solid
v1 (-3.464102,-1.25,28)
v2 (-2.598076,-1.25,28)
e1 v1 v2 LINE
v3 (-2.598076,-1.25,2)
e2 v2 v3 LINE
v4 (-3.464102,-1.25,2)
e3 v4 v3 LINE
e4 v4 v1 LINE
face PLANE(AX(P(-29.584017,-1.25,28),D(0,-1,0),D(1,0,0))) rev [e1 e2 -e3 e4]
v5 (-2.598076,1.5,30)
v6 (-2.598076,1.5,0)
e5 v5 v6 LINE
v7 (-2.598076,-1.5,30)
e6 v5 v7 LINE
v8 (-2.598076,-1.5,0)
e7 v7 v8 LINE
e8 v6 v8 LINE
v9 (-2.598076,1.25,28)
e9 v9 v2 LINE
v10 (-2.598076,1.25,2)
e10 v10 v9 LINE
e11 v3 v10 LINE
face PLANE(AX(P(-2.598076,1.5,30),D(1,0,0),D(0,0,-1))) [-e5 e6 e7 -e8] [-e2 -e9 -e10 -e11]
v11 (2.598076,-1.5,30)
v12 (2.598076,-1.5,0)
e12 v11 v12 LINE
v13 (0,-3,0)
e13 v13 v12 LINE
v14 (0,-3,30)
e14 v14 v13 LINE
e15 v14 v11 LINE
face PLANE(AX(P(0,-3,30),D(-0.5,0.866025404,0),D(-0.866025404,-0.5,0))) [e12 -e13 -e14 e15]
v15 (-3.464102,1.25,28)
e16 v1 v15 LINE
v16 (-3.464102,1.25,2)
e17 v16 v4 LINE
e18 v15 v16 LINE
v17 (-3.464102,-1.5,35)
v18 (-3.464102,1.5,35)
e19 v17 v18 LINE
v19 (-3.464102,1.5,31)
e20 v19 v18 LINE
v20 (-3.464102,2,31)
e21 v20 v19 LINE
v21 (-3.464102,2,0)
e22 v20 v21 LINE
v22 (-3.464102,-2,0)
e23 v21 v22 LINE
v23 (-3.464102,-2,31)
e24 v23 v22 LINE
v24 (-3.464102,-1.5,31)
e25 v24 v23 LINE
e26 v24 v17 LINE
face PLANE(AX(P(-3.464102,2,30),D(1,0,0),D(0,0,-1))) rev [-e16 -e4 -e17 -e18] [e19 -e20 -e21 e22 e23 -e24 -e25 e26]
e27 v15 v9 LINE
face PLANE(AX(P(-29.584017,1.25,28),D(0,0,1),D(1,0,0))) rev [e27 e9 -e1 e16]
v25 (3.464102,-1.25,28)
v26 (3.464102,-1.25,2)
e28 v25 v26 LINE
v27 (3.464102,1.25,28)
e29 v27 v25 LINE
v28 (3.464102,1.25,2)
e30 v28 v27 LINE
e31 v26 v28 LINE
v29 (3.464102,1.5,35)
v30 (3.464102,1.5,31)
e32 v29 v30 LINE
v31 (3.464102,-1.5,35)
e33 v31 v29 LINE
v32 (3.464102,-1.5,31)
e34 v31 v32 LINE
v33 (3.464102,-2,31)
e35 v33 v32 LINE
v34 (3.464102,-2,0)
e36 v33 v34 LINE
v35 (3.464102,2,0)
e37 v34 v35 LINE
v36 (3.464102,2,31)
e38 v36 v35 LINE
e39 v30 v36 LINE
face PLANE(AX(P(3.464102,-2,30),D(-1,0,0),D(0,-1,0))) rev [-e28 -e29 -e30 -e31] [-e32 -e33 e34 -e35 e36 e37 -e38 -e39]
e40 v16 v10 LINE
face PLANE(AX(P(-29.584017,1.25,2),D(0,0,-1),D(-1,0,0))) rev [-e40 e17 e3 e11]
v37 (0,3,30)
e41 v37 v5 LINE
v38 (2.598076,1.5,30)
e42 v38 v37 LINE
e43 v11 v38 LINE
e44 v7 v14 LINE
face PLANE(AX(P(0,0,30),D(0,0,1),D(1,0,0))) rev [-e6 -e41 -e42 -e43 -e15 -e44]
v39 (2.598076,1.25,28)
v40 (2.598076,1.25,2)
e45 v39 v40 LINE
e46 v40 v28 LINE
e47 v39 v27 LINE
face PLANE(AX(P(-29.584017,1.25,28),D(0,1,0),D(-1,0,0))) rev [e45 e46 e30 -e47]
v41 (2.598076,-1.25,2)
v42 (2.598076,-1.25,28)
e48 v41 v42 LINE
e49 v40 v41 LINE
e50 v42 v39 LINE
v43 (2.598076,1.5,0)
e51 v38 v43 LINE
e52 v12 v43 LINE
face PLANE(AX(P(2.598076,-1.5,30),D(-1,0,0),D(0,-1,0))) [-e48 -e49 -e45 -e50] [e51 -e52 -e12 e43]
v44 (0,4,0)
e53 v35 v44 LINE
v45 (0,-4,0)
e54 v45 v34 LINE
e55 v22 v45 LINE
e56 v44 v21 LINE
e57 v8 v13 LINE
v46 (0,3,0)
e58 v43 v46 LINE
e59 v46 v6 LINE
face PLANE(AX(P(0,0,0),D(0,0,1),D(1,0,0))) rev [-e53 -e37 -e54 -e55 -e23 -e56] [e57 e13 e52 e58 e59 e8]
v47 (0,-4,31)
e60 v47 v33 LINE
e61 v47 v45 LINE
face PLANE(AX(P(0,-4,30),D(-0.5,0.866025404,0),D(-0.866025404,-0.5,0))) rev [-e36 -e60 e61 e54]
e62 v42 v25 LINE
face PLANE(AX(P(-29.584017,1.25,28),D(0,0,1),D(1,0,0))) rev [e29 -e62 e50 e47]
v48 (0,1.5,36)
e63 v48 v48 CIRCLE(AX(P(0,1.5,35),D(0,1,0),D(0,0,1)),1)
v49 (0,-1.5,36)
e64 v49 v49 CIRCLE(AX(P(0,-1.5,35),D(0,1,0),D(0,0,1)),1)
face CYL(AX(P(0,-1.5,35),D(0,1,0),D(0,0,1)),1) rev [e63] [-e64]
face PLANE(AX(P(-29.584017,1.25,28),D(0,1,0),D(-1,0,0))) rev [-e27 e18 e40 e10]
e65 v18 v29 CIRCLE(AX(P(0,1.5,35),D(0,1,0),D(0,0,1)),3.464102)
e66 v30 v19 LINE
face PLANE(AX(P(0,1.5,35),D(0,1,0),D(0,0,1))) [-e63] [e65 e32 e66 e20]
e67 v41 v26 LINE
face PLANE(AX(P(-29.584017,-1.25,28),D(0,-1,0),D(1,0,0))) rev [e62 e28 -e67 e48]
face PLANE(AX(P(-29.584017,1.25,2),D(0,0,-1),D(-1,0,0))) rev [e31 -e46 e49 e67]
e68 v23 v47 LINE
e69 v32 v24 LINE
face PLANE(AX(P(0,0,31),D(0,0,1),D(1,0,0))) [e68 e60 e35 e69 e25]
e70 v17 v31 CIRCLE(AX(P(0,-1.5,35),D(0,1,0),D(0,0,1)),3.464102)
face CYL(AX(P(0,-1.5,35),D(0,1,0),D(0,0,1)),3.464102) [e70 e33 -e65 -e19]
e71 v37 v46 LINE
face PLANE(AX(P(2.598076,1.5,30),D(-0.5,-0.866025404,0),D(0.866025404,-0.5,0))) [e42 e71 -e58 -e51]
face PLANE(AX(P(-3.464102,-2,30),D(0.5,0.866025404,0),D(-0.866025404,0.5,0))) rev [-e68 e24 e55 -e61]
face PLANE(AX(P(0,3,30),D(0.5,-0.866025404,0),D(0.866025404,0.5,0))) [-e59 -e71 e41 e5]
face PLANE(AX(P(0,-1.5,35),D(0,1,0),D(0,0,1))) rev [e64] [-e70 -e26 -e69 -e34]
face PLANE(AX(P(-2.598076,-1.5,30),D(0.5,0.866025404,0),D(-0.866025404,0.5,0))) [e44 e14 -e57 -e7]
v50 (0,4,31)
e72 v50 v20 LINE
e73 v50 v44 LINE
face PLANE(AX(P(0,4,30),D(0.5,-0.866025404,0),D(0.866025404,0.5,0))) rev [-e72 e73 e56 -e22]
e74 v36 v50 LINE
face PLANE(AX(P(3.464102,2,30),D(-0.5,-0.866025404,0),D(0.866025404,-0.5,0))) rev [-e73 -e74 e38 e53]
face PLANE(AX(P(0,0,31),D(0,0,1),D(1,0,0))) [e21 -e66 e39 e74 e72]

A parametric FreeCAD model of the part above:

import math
import FreeCAD as App
import Part
import Sketcher
Q = App.Units.Quantity

doc = App.newDocument("Part")
params = doc.addObject("Spreadsheet::Sheet", "Params")
for row, (alias, value) in enumerate([
    ("sketch1_height", "4 mm"),
    ("sketch1_height2", "3 mm"),
    ("sketch1_length", "4 mm"),
    ("sketch1_length2", "3 mm"),
    ("pad1_length", "30 mm"),
    ("sketch2_height", "4 mm"),
    ("sketch2_length", "4 mm"),
    ("pad2_length", "1 mm"),
    ("sketch3_height", "26 mm"),
    ("sketch3_width", "2.5 mm"),
    ("pocket1_length", "6.928203 mm"),
    ("sketch4_diameter", "2 mm"),
    ("sketch4_height", "4 mm"),
    ("pad3_length", "1.5 mm"),
    ("pad3_length2", "1.5 mm"),
], start=1):
    params.set(f"A{row}", alias)
    params.set(f"B{row}", "=" + value)
    params.setAlias(f"B{row}", alias)

body = doc.addObject("PartDesign::Body", "Body")

# Sketch on XY plane
sketch1 = body.newObject("Sketcher::SketchObject", "Sketch")
sketch1.AttachmentSupport = (doc.getObject("XY_Plane"), [""])
sketch1.MapMode = "FlatFace"
sketch1.addGeometry(Part.LineSegment(App.Vector(0, 4, 0), App.Vector(-3.5, 2, 0)), False)
sketch1.addGeometry(Part.LineSegment(App.Vector(-3.5, 2, 0), App.Vector(-3.5, -2, 0)), False)
sketch1.addGeometry(Part.LineSegment(App.Vector(-3.5, -2, 0), App.Vector(0, -4, 0)), False)
sketch1.addGeometry(Part.LineSegment(App.Vector(0, -4, 0), App.Vector(3.5, -2, 0)), False)
sketch1.addGeometry(Part.LineSegment(App.Vector(3.5, -2, 0), App.Vector(3.5, 2, 0)), False)
sketch1.addGeometry(Part.LineSegment(App.Vector(3.5, 2, 0), App.Vector(0, 4, 0)), False)
sketch1.addGeometry(Part.LineSegment(App.Vector(-2.6, 1.5, 0), App.Vector(0, 3, 0)), False)
sketch1.addGeometry(Part.LineSegment(App.Vector(0, 3, 0), App.Vector(2.6, 1.5, 0)), False)
sketch1.addGeometry(Part.LineSegment(App.Vector(2.6, 1.5, 0), App.Vector(2.6, -1.5, 0)), False)
sketch1.addGeometry(Part.LineSegment(App.Vector(2.6, -1.5, 0), App.Vector(0, -3, 0)), False)
sketch1.addGeometry(Part.LineSegment(App.Vector(0, -3, 0), App.Vector(-2.6, -1.5, 0)), False)
sketch1.addGeometry(Part.LineSegment(App.Vector(-2.6, -1.5, 0), App.Vector(-2.6, 1.5, 0)), False)
sketch1.addConstraint(Sketcher.Constraint("Coincident", 0, 2, 1, 1))
sketch1.addConstraint(Sketcher.Constraint("Coincident", 1, 2, 2, 1))
sketch1.addConstraint(Sketcher.Constraint("Coincident", 2, 2, 3, 1))
sketch1.addConstraint(Sketcher.Constraint("Coincident", 3, 2, 4, 1))
sketch1.addConstraint(Sketcher.Constraint("Coincident", 4, 2, 5, 1))
sketch1.addConstraint(Sketcher.Constraint("Coincident", 5, 2, 0, 1))
sketch1.addConstraint(Sketcher.Constraint("Coincident", 6, 2, 7, 1))
sketch1.addConstraint(Sketcher.Constraint("Coincident", 7, 2, 8, 1))
sketch1.addConstraint(Sketcher.Constraint("Coincident", 8, 2, 9, 1))
sketch1.addConstraint(Sketcher.Constraint("Coincident", 9, 2, 10, 1))
sketch1.addConstraint(Sketcher.Constraint("Coincident", 10, 2, 11, 1))
sketch1.addConstraint(Sketcher.Constraint("Coincident", 11, 2, 6, 1))
sketch1.addConstraint(Sketcher.Constraint("Vertical", 1))
sketch1.addConstraint(Sketcher.Constraint("Vertical", 4))
sketch1.addConstraint(Sketcher.Constraint("Vertical", 8))
sketch1.addConstraint(Sketcher.Constraint("Vertical", 11))
sketch1.addConstraint(Sketcher.Constraint("Symmetric", 0, 2, 3, 2, -1, 1))
sketch1.addConstraint(Sketcher.Constraint("Symmetric", 2, 2, 5, 2, -1, 1))
sketch1.addConstraint(Sketcher.Constraint("Symmetric", 6, 2, 9, 2, -1, 1))
sketch1.addConstraint(Sketcher.Constraint("Symmetric", 7, 2, 10, 2, -1, 1))
sketch1.addConstraint(Sketcher.Constraint("PointOnObject", 2, 2, -2))
sketch1.addConstraint(Sketcher.Constraint("PointOnObject", 6, 2, -2))
sketch1.addConstraint(Sketcher.Constraint("Parallel", 2, 5))
sketch1.addConstraint(Sketcher.Constraint("Parallel", 3, 6))
sketch1.addConstraint(Sketcher.Constraint("Parallel", 5, 7))
sketch1.addConstraint(Sketcher.Constraint("Parallel", 6, 9))
sketch1.addConstraint(Sketcher.Constraint("Horizontal", 1, 2, 3, 2))
sketch1.addConstraint(Sketcher.Constraint("DistanceY", 1, 2, 1, 1, Q("4 mm")))
sketch1.addConstraint(Sketcher.Constraint("DistanceY", 8, 2, 8, 1, Q("3 mm")))
sketch1.addConstraint(Sketcher.Constraint("Angle", 0, Q("-150 deg")))
sketch1.addConstraint(Sketcher.Constraint("Distance", 0, Q("4 mm")))
sketch1.addConstraint(Sketcher.Constraint("Distance", 6, Q("3 mm")))
sketch1.setExpression("Constraints[27]", "Params.sketch1_height")
sketch1.setExpression("Constraints[28]", "Params.sketch1_height2")
sketch1.setExpression("Constraints[30]", "Params.sketch1_length")
sketch1.setExpression("Constraints[31]", "Params.sketch1_length2")
pad1 = body.newObject("PartDesign::Pad", "Pad")
pad1.Profile = sketch1
pad1.setExpression("Length", "Params.pad1_length")

# Sketch on XY plane
sketch2 = body.newObject("Sketcher::SketchObject", "Sketch001")
sketch2.AttachmentSupport = (doc.getObject("XY_Plane"), [""])
sketch2.MapMode = "FlatFace"
sketch2.AttachmentOffset = App.Placement(App.Vector(0, 0, 30), App.Rotation())
sketch2.addGeometry(Part.LineSegment(App.Vector(0, 4, 0), App.Vector(-3.5, 2, 0)), False)
sketch2.addGeometry(Part.LineSegment(App.Vector(-3.5, 2, 0), App.Vector(-3.5, -2, 0)), False)
sketch2.addGeometry(Part.LineSegment(App.Vector(-3.5, -2, 0), App.Vector(0, -4, 0)), False)
sketch2.addGeometry(Part.LineSegment(App.Vector(0, -4, 0), App.Vector(3.5, -2, 0)), False)
sketch2.addGeometry(Part.LineSegment(App.Vector(3.5, -2, 0), App.Vector(3.5, 2, 0)), False)
sketch2.addGeometry(Part.LineSegment(App.Vector(3.5, 2, 0), App.Vector(0, 4, 0)), False)
sketch2.addConstraint(Sketcher.Constraint("Coincident", 0, 2, 1, 1))
sketch2.addConstraint(Sketcher.Constraint("Coincident", 1, 2, 2, 1))
sketch2.addConstraint(Sketcher.Constraint("Coincident", 2, 2, 3, 1))
sketch2.addConstraint(Sketcher.Constraint("Coincident", 3, 2, 4, 1))
sketch2.addConstraint(Sketcher.Constraint("Coincident", 4, 2, 5, 1))
sketch2.addConstraint(Sketcher.Constraint("Coincident", 5, 2, 0, 1))
sketch2.addConstraint(Sketcher.Constraint("Vertical", 1))
sketch2.addConstraint(Sketcher.Constraint("Vertical", 4))
sketch2.addConstraint(Sketcher.Constraint("Symmetric", 0, 2, 3, 2, -1, 1))
sketch2.addConstraint(Sketcher.Constraint("Symmetric", 2, 2, 5, 2, -1, 1))
sketch2.addConstraint(Sketcher.Constraint("PointOnObject", 2, 2, -2))
sketch2.addConstraint(Sketcher.Constraint("Parallel", 2, 5))
sketch2.addConstraint(Sketcher.Constraint("Horizontal", 1, 2, 3, 2))
sketch2.addConstraint(Sketcher.Constraint("DistanceY", 1, 2, 1, 1, Q("4 mm")))
sketch2.addConstraint(Sketcher.Constraint("Angle", 0, Q("-150 deg")))
sketch2.addConstraint(Sketcher.Constraint("Distance", 0, Q("4 mm")))
sketch2.setExpression("Constraints[13]", "Params.sketch2_height")
sketch2.setExpression("Constraints[15]", "Params.sketch2_length")
pad2 = body.newObject("PartDesign::Pad", "Pad001")
pad2.Profile = sketch2
pad2.setExpression("Length", "Params.pad2_length")

# Sketch on YZ plane
sketch3 = body.newObject("Sketcher::SketchObject", "Sketch002")
sketch3.AttachmentSupport = (doc.getObject("YZ_Plane"), [""])
sketch3.MapMode = "FlatFace"
sketch3.AttachmentOffset = App.Placement(App.Vector(0, 0, 3.464102), App.Rotation())
sketch3.addGeometry(Part.LineSegment(App.Vector(1.2, 28, 0), App.Vector(-1.2, 28, 0)), False)
sketch3.addGeometry(Part.LineSegment(App.Vector(-1.2, 28, 0), App.Vector(-1.2, 2, 0)), False)
sketch3.addGeometry(Part.LineSegment(App.Vector(-1.2, 2, 0), App.Vector(1.2, 2, 0)), False)
sketch3.addGeometry(Part.LineSegment(App.Vector(1.2, 2, 0), App.Vector(1.2, 28, 0)), False)
sketch3.addConstraint(Sketcher.Constraint("Coincident", 0, 2, 1, 1))
sketch3.addConstraint(Sketcher.Constraint("Coincident", 1, 2, 2, 1))
sketch3.addConstraint(Sketcher.Constraint("Coincident", 2, 2, 3, 1))
sketch3.addConstraint(Sketcher.Constraint("Coincident", 3, 2, 0, 1))
sketch3.addConstraint(Sketcher.Constraint("Horizontal", 0))
sketch3.addConstraint(Sketcher.Constraint("Vertical", 1))
sketch3.addConstraint(Sketcher.Constraint("Horizontal", 2))
sketch3.addConstraint(Sketcher.Constraint("Vertical", 3))
sketch3.addConstraint(Sketcher.Constraint("DistanceY", 1, 2, 1, 1, Q("26 mm")))
sketch3.addConstraint(Sketcher.Constraint("DistanceX", 0, 2, 0, 1, Q("2.5 mm")))
sketch3.addConstraint(Sketcher.Constraint("DistanceY", -1, 1, 0, 2, Q("28 mm")))
sketch3.addConstraint(Sketcher.Constraint("DistanceX", 0, 2, -1, 1, Q("1.25 mm")))
sketch3.setExpression("Constraints[8]", "Params.sketch3_height")
sketch3.setExpression("Constraints[9]", "Params.sketch3_width")
pocket1 = body.newObject("PartDesign::Pocket", "Pocket")
pocket1.Profile = sketch3
pocket1.setExpression("Length", "Params.pocket1_length")

# Sketch on XZ plane
sketch4 = body.newObject("Sketcher::SketchObject", "Sketch003")
sketch4.AttachmentSupport = (doc.getObject("XZ_Plane"), [""])
sketch4.MapMode = "FlatFace"
sketch4.addGeometry(Part.LineSegment(App.Vector(3.5, 31, 0), App.Vector(-3.5, 31, 0)), False)
sketch4.addGeometry(Part.LineSegment(App.Vector(-3.5, 31, 0), App.Vector(-3.5, 35, 0)), False)
sketch4.addGeometry(Part.ArcOfCircle(Part.Circle(App.Vector(0, 35, 0), App.Vector(0, 0, 1), 3.5), math.radians(0), math.radians(180)), False)
sketch4.addGeometry(Part.LineSegment(App.Vector(3.5, 35, 0), App.Vector(3.5, 31, 0)), False)
sketch4.addGeometry(Part.Circle(App.Vector(0, 35, 0), App.Vector(0, 0, 1), 1), False)
sketch4.addConstraint(Sketcher.Constraint("Coincident", 0, 2, 1, 1))
sketch4.addConstraint(Sketcher.Constraint("Tangent", 1, 2, 2, 2))
sketch4.addConstraint(Sketcher.Constraint("Tangent", 2, 1, 3, 1))
sketch4.addConstraint(Sketcher.Constraint("Coincident", 3, 2, 0, 1))
sketch4.addConstraint(Sketcher.Constraint("Horizontal", 0))
sketch4.addConstraint(Sketcher.Constraint("Vertical", 1))
sketch4.addConstraint(Sketcher.Constraint("Vertical", 3))
sketch4.addConstraint(Sketcher.Constraint("Coincident", 4, 3, 2, 3))
sketch4.addConstraint(Sketcher.Constraint("PointOnObject", 2, 3, -2))
sketch4.addConstraint(Sketcher.Constraint("Diameter", 4, Q("2 mm")))
sketch4.addConstraint(Sketcher.Constraint("DistanceY", 1, 1, 1, 2, Q("4 mm")))
sketch4.addConstraint(Sketcher.Constraint("DistanceY", -1, 1, 2, 3, Q("35 mm")))
sketch4.addConstraint(Sketcher.Constraint("Radius", 2, Q("3.464102 mm")))
sketch4.setExpression("Constraints[9]", "Params.sketch4_diameter")
sketch4.setExpression("Constraints[10]", "Params.sketch4_height")
pad3 = body.newObject("PartDesign::Pad", "Pad002")
pad3.Profile = sketch4
pad3.Type = "TwoLengths"
pad3.setExpression("Length", "Params.pad3_length")
pad3.setExpression("Length2", "Params.pad3_length2")
pad3.Reversed = True

doc.recompute()
